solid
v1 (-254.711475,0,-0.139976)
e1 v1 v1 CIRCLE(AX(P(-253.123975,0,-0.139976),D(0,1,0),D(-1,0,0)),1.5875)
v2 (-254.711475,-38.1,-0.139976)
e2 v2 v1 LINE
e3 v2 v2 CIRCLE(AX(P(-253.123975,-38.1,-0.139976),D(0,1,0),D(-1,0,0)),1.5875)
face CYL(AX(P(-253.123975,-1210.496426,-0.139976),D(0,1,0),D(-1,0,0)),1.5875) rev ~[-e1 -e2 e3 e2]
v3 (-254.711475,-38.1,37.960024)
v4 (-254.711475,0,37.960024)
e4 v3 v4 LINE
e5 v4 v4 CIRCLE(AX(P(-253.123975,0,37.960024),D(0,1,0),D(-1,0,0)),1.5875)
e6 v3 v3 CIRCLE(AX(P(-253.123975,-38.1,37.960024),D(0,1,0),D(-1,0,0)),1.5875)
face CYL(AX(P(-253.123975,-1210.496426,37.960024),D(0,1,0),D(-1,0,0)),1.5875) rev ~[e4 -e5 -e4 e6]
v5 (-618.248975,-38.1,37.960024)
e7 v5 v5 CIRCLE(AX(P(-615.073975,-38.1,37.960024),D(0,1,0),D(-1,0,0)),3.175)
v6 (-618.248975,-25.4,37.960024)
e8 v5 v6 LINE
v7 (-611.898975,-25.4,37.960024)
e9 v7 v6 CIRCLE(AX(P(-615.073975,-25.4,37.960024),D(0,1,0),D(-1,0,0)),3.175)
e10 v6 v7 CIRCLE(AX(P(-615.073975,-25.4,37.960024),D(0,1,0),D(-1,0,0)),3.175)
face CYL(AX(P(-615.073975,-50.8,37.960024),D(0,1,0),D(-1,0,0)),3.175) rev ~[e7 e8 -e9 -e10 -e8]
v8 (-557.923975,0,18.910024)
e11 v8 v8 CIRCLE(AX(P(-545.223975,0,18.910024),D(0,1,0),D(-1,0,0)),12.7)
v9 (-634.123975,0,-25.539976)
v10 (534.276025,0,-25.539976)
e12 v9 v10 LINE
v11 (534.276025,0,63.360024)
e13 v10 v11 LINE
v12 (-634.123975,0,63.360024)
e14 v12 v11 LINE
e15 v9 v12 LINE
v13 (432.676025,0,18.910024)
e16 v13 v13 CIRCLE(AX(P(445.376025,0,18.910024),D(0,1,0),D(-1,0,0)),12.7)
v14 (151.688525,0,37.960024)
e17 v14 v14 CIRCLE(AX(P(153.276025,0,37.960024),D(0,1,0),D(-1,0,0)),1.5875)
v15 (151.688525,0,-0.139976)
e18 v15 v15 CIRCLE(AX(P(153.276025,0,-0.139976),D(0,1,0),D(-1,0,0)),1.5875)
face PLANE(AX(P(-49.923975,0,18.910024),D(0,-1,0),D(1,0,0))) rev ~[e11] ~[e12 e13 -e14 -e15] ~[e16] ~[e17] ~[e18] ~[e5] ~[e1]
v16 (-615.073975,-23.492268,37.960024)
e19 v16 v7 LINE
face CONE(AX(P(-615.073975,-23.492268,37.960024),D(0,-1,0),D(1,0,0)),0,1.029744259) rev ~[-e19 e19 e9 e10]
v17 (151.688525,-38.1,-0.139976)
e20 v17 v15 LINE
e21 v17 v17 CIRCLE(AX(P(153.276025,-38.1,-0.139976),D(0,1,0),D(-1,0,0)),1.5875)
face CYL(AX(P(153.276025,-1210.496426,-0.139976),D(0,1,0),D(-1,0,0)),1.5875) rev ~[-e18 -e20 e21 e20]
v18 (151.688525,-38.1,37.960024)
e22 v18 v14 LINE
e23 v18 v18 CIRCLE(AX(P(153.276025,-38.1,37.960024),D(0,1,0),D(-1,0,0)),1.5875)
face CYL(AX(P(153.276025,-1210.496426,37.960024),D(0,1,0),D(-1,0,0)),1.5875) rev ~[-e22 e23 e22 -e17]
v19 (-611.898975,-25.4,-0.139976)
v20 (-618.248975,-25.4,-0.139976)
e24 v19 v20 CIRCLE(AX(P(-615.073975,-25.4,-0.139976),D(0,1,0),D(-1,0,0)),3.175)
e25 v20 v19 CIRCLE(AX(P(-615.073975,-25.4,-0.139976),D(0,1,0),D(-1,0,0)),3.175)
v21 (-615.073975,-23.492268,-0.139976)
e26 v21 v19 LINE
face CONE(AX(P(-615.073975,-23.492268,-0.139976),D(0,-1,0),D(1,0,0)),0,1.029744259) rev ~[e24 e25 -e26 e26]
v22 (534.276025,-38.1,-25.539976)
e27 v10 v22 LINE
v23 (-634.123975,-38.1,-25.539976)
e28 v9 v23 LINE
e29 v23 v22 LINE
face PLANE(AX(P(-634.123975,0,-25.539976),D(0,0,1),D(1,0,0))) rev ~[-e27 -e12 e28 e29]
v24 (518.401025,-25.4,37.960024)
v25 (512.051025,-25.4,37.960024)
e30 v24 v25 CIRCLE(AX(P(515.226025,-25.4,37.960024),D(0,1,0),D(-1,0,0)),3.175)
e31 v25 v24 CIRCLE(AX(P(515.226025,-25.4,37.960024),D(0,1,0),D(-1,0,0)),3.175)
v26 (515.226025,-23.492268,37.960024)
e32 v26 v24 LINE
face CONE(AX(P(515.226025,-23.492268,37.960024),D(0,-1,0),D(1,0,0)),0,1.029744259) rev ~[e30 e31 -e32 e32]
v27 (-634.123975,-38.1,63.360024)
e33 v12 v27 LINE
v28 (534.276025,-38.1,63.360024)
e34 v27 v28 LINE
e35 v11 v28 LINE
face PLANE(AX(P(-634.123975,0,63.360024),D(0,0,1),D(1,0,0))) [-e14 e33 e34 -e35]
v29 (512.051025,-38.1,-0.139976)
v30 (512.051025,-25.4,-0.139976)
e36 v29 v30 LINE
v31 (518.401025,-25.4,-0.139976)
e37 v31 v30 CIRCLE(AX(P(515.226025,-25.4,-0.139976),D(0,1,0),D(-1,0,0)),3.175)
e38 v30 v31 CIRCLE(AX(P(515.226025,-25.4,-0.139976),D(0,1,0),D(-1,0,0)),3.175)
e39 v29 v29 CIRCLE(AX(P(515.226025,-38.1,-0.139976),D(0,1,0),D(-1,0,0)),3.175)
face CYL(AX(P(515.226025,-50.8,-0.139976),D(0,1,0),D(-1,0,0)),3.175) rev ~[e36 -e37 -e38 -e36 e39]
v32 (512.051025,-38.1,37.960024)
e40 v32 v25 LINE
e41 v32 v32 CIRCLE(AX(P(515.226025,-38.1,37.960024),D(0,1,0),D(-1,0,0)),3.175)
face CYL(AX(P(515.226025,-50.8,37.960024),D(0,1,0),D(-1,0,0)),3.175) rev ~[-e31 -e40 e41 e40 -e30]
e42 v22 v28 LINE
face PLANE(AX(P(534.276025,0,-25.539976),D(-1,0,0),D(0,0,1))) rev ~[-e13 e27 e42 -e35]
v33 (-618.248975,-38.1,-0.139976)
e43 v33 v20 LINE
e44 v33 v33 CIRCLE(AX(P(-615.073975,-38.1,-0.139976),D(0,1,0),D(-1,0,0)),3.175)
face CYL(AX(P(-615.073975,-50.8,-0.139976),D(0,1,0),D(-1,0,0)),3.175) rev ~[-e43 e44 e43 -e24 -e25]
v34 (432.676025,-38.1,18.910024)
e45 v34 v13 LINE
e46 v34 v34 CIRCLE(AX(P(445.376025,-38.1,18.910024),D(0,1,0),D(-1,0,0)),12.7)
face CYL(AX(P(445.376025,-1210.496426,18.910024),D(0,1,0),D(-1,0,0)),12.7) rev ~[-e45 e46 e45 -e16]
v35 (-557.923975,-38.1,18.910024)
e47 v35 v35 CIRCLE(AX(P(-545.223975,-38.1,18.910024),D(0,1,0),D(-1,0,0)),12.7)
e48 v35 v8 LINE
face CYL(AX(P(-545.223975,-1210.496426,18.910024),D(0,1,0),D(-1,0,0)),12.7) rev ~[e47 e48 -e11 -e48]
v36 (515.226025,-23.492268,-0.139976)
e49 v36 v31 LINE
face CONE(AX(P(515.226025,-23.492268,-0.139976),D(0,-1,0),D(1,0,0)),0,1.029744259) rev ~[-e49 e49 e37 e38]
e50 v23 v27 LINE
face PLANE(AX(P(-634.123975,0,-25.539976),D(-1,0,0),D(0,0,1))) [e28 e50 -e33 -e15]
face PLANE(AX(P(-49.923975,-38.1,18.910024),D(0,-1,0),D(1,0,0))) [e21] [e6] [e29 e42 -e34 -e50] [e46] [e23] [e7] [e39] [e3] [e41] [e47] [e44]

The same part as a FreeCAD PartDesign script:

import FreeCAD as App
import Part
import Sketcher

V = App.Vector
Q = App.Units.Quantity

doc = App.newDocument("Part")
body = doc.addObject("PartDesign::Body", "Body")

# Sketch on XZ plane
sketch1 = body.newObject("Sketcher::SketchObject", "Sketch")
sketch1.AttachmentSupport = (doc.getObject("XZ_Plane"), [""])
sketch1.MapMode = "FlatFace"
sketch1.addGeometry(Part.LineSegment(V(-634.123975, 63.360024, 0), V(-634.123975, -25.539976, 0)), False)
sketch1.addGeometry(Part.LineSegment(V(-634.123975, -25.539976, 0), V(534.276025, -25.539976, 0)), False)
sketch1.addGeometry(Part.LineSegment(V(534.276025, -25.539976, 0), V(534.276025, 63.360024, 0)), False)
sketch1.addGeometry(Part.LineSegment(V(534.276025, 63.360024, 0), V(-634.123975, 63.360024, 0)), False)
sketch1.addConstraint(Sketcher.Constraint("Coincident", 0, 2, 1, 1))
sketch1.addConstraint(Sketcher.Constraint("Coincident", 1, 2, 2, 1))
sketch1.addConstraint(Sketcher.Constraint("Coincident", 2, 2, 3, 1))
sketch1.addConstraint(Sketcher.Constraint("Coincident", 3, 2, 0, 1))
sketch1.addConstraint(Sketcher.Constraint("Vertical", 0))
sketch1.addConstraint(Sketcher.Constraint("Horizontal", 1))
sketch1.addConstraint(Sketcher.Constraint("Vertical", 2))
sketch1.addConstraint(Sketcher.Constraint("Horizontal", 3))
sketch1.addConstraint(Sketcher.Constraint("DistanceX", 1, 1, 1, 2, Q("46 in")))
sketch1.addConstraint(Sketcher.Constraint("DistanceY", 0, 2, 0, 1, Q("3.5 in")))
sketch1.addConstraint(Sketcher.Constraint("DistanceX", 0, 2, -1, 1, 634.123975))
sketch1.addConstraint(Sketcher.Constraint("DistanceY", 0, 2, -1, 1, 25.539976))
pad1 = body.newObject("PartDesign::Pad", "Pad")
pad1.Profile = sketch1
pad1.Length = Q("1.5 in")

# Sketch on XZ plane
sketch2 = body.newObject("Sketcher::SketchObject", "Sketch001")
sketch2.AttachmentSupport = (doc.getObject("XZ_Plane"), [""])
sketch2.MapMode = "FlatFace"
sketch2.AttachmentOffset = App.Placement(V(0, 0, 1.5 * 25.4), App.Rotation())
sketch2.addGeometry(Part.Circle(V(515.226025, 37.960024, 0), V(0, 0, 1), 3.175), False)
sketch2.addGeometry(Part.Circle(V(515.226025, -0.139976, 0), V(0, 0, 1), 3.175), False)
sketch2.addGeometry(Part.Circle(V(-615.073975, 37.960024, 0), V(0, 0, 1), 3.175), False)
sketch2.addGeometry(Part.Circle(V(-615.073975, -0.139976, 0), V(0, 0, 1), 3.175), False)
sketch2.addConstraint(Sketcher.Constraint("Equal", 0, 1))
sketch2.addConstraint(Sketcher.Constraint("Equal", 1, 2))
sketch2.addConstraint(Sketcher.Constraint("Equal", 2, 3))
sketch2.addConstraint(Sketcher.Constraint("Horizontal", 0, 3, 2, 3))
sketch2.addConstraint(Sketcher.Constraint("Horizontal", 1, 3, 3, 3))
sketch2.addConstraint(Sketcher.Constraint("Vertical", 0, 3, 1, 3))
sketch2.addConstraint(Sketcher.Constraint("Vertical", 2, 3, 3, 3))
sketch2.addConstraint(Sketcher.Constraint("Diameter", 0, Q("0.25 in")))
sketch2.addConstraint(Sketcher.Constraint("DistanceY", 1, 3, 0, 3, Q("1.5 in")))
sketch2.addConstraint(Sketcher.Constraint("DistanceX", 2, 3, 0, 3, Q("44.5 in")))
sketch2.addConstraint(Sketcher.Constraint("DistanceX", -1, 1, 0, 3, 515.226025))
sketch2.addConstraint(Sketcher.Constraint("DistanceY", -1, 1, 0, 3, 37.960024))
doc.recompute()
hole = body.newObject("PartDesign::Hole", "Hole")
hole.Profile = sketch2
hole.ThreadType = "None"
hole.Diameter = Q("0.25 in")
hole.DepthType = "Dimension"
hole.Depth = Q("0.5 in")
hole.DrillPoint = "Angled"
hole.DrillPointAngle = 118

# Sketch on XZ plane
sketch3 = body.newObject("Sketcher::SketchObject", "Sketch002")
sketch3.AttachmentSupport = (doc.getObject("XZ_Plane"), [""])
sketch3.MapMode = "FlatFace"
sketch3.AttachmentOffset = App.Placement(V(0, 0, 1.5 * 25.4), App.Rotation())
sketch3.addGeometry(Part.Circle(V(-545.223975, 18.910024, 0), V(0, 0, 1), 12.7), False)
sketch3.addGeometry(Part.Circle(V(445.376025, 18.910024, 0), V(0, 0, 1), 12.7), False)
sketch3.addConstraint(Sketcher.Constraint("Equal", 0, 1))
sketch3.addConstraint(Sketcher.Constraint("Horizontal", 0, 3, 1, 3))
sketch3.addConstraint(Sketcher.Constraint("Diameter", 0, Q("1 in")))
sketch3.addConstraint(Sketcher.Constraint("DistanceX", 0, 3, 1, 3, Q("39 in")))
sketch3.addConstraint(Sketcher.Constraint("DistanceX", 0, 3, -1, 1, 545.223975))
sketch3.addConstraint(Sketcher.Constraint("DistanceY", -1, 1, 0, 3, 18.910024))
doc.recompute()
hole2 = body.newObject("PartDesign::Hole", "Hole001")
hole2.Profile = sketch3
hole2.ThreadType = "None"
hole2.Diameter = Q("1 in")
hole2.DepthType = "ThroughAll"

# Sketch on XZ plane
sketch4 = body.newObject("Sketcher::SketchObject", "Sketch003")
sketch4.AttachmentSupport = (doc.getObject("XZ_Plane"), [""])
sketch4.MapMode = "FlatFace"
sketch4.AttachmentOffset = App.Placement(V(0, 0, 1.5 * 25.4), App.Rotation())
sketch4.addGeometry(Part.Circle(V(-253.123975, 37.960024, 0), V(0, 0, 1), 1.5875), False)
sketch4.addGeometry(Part.Circle(V(-253.123975, -0.139976, 0), V(0, 0, 1), 1.5875), False)
sketch4.addGeometry(Part.Circle(V(153.276025, 37.960024, 0), V(0, 0, 1), 1.5875), False)
sketch4.addGeometry(Part.Circle(V(153.276025, -0.139976, 0), V(0, 0, 1), 1.5875), False)
sketch4.addConstraint(Sketcher.Constraint("Equal", 0, 1))
sketch4.addConstraint(Sketcher.Constraint("Equal", 1, 2))
sketch4.addConstraint(Sketcher.Constraint("Equal", 2, 3))
sketch4.addConstraint(Sketcher.Constraint("Horizontal", 0, 3, 2, 3))
sketch4.addConstraint(Sketcher.Constraint("Horizontal", 1, 3, 3, 3))
sketch4.addConstraint(Sketcher.Constraint("Vertical", 0, 3, 1, 3))
sketch4.addConstraint(Sketcher.Constraint("Vertical", 2, 3, 3, 3))
sketch4.addConstraint(Sketcher.Constraint("Diameter", 0, Q("0.125 in")))
sketch4.addConstraint(Sketcher.Constraint("DistanceX", 0, 3, 2, 3, Q("16 in")))
sketch4.addConstraint(Sketcher.Constraint("DistanceY", 1, 3, 0, 3, Q("1.5 in")))
sketch4.addConstraint(Sketcher.Constraint("DistanceX", 0, 3, -1, 1, 253.123975))
sketch4.addConstraint(Sketcher.Constraint("DistanceY", -1, 1, 0, 3, 37.960024))
doc.recompute()
hole3 = body.newObject("PartDesign::Hole", "Hole002")
hole3.Profile = sketch4
hole3.ThreadType = "None"
hole3.Diameter = Q("0.125 in")
hole3.DepthType = "ThroughAll"

doc.recompute()
